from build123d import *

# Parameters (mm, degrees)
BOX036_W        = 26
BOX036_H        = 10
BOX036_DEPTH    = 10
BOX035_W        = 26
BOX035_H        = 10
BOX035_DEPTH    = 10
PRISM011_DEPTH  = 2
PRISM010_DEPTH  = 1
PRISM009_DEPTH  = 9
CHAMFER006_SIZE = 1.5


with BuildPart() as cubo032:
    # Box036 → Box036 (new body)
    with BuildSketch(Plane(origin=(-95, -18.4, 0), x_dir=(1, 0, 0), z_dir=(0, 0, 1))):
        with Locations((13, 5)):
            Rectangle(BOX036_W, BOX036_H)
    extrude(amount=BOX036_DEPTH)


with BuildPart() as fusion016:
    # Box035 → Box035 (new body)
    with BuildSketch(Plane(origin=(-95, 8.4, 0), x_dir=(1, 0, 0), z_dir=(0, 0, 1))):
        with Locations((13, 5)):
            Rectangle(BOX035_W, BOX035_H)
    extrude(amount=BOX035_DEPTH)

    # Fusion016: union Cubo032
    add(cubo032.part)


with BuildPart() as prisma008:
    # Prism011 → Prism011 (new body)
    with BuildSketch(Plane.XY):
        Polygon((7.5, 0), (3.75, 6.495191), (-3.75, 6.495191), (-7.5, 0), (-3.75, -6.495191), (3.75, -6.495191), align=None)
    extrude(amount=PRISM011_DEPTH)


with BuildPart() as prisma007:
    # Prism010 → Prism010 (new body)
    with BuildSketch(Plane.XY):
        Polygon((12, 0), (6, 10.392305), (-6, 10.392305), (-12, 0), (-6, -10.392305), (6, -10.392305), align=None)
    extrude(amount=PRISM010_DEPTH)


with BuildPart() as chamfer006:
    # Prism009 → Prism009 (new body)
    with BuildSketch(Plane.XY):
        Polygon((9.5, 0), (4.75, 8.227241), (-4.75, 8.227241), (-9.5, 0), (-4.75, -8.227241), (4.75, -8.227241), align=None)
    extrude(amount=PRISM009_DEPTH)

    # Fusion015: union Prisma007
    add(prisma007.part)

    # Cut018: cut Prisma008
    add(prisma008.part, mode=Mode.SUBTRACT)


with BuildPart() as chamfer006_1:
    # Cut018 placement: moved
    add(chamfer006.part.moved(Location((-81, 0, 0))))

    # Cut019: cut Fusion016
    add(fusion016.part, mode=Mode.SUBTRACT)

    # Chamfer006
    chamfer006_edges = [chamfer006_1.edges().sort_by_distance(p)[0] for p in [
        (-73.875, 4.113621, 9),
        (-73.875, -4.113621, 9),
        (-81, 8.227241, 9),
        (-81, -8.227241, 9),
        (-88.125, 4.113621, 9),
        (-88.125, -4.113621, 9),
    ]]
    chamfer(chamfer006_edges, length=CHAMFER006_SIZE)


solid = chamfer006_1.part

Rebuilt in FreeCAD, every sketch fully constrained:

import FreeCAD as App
import Part
import Sketcher
from FreeCAD import Vector
Q = App.Units.Quantity


def edges_at(feature, points):
    """Names of the edges that pass closest to the given points."""
    edges = feature.Shape.Edges
    near = lambda p: min(range(len(edges)), key=lambda i: edges[i].distToShape(Part.Vertex(*p))[0])
    return sorted({f"Edge{near(p) + 1}" for p in points})


def add_polygon(sketch, points):
    """Adds a closed chain of lines whose ends are joined by coincident constraints."""
    first, n = sketch.GeometryCount, len(points)
    for a, b in zip(points, points[1:] + points[:1]):
        sketch.addGeometry(Part.LineSegment(App.Vector(*a, 0), App.Vector(*b, 0)), False)
    for i in range(n):
        sketch.addConstraint(Sketcher.Constraint("Coincident", first + i, 2, first + (i + 1) % n, 1))

doc = App.newDocument("Part")
body = doc.addObject("PartDesign::Body", "Body")

# Sketch on XY plane
sketch1 = doc.addObject("Sketcher::SketchObject", "Sketch")
body.addObject(sketch1)
sketch1.AttachmentSupport = (doc.XY_Plane, [""])
sketch1.MapMode = "FlatFace"
add_polygon(sketch1, [(-95, -8), (-95, -18), (-69, -18), (-69, -8)])  # lines 0-3
sketch1.addConstraint(Sketcher.Constraint("Vertical", 0))
sketch1.addConstraint(Sketcher.Constraint("Horizontal", 1))
sketch1.addConstraint(Sketcher.Constraint("Vertical", 2))
sketch1.addConstraint(Sketcher.Constraint("Horizontal", 3))
sketch1.addConstraint(Sketcher.Constraint("DistanceX", 1, 1, 1, 2, Q("26 mm")))
sketch1.addConstraint(Sketcher.Constraint("DistanceY", 0, 2, 0, 1, Q("10 mm")))
sketch1.addConstraint(Sketcher.Constraint("DistanceX", 0, 2, -1, 1, Q("95 mm")))
sketch1.addConstraint(Sketcher.Constraint("DistanceY", 0, 2, -1, 1, Q("18.4 mm")))
pad1 = doc.addObject("PartDesign::Pad", "Pad")
body.addObject(pad1)
pad1.Profile = sketch1
pad1.Length = 10
body2 = doc.addObject("PartDesign::Body", "Body001")
body2.AllowCompound = True

# Sketch on XY plane
sketch2 = doc.addObject("Sketcher::SketchObject", "Sketch001")
body2.addObject(sketch2)
sketch2.AttachmentSupport = (doc.getObject("XY_Plane001"), [""])
sketch2.MapMode = "FlatFace"
add_polygon(sketch2, [(-95, 18), (-95, 8), (-69, 8), (-69, 18)])  # lines 0-3
sketch2.addConstraint(Sketcher.Constraint("Vertical", 0))
sketch2.addConstraint(Sketcher.Constraint("Horizontal", 1))
sketch2.addConstraint(Sketcher.Constraint("Vertical", 2))
sketch2.addConstraint(Sketcher.Constraint("Horizontal", 3))
sketch2.addConstraint(Sketcher.Constraint("DistanceX", 1, 1, 1, 2, Q("26 mm")))
sketch2.addConstraint(Sketcher.Constraint("DistanceY", 0, 2, 0, 1, Q("10 mm")))
sketch2.addConstraint(Sketcher.Constraint("DistanceX", 0, 2, -1, 1, Q("95 mm")))
sketch2.addConstraint(Sketcher.Constraint("DistanceY", -1, 1, 0, 2, Q("8.4 mm")))
pad2 = doc.addObject("PartDesign::Pad", "Pad001")
body2.addObject(pad2)
pad2.Profile = sketch2
pad2.Length = 10
doc.recompute()

boolean = doc.addObject("PartDesign::Boolean", "Boolean")
body2.addObject(boolean)
boolean.Type = "Fuse"
boolean.addObjects([body])
body3 = doc.addObject("PartDesign::Body", "Body002")

# Sketch on XY plane
sketch3 = doc.addObject("Sketcher::SketchObject", "Sketch002")
body3.addObject(sketch3)
sketch3.AttachmentSupport = (doc.getObject("XY_Plane002"), [""])
sketch3.MapMode = "FlatFace"
add_polygon(sketch3, [(8, 0), (4, 6), (-4, 6), (-8, 0), (-4, -6), (4, -6)])  # lines 0-5
sketch3.addConstraint(Sketcher.Constraint("Horizontal", 1))
sketch3.addConstraint(Sketcher.Constraint("Horizontal", 4))
sketch3.addConstraint(Sketcher.Constraint("Symmetric", 0, 2, 3, 2, -1, 1))
sketch3.addConstraint(Sketcher.Constraint("Symmetric", 2, 2, 5, 2, -1, 1))
sketch3.addConstraint(Sketcher.Constraint("PointOnObject", 2, 2, -1))
sketch3.addConstraint(Sketcher.Constraint("Parallel", 2, 5))
sketch3.addConstraint(Sketcher.Constraint("Vertical", 1, 2, 3, 2))
sketch3.addConstraint(Sketcher.Constraint("Angle", 0, Q("119.999998 deg")))
sketch3.addConstraint(Sketcher.Constraint("DistanceX", 1, 2, 1, 1, Q("7.5 mm")))
sketch3.addConstraint(Sketcher.Constraint("DistanceX", 2, 2, 5, 2, Q("15 mm")))
pad3 = doc.addObject("PartDesign::Pad", "Pad002")
body3.addObject(pad3)
pad3.Profile = sketch3
pad3.Length = 2
body4 = doc.addObject("PartDesign::Body", "Body003")

# Sketch on XY plane
sketch4 = doc.addObject("Sketcher::SketchObject", "Sketch003")
body4.addObject(sketch4)
sketch4.AttachmentSupport = (doc.getObject("XY_Plane003"), [""])
sketch4.MapMode = "FlatFace"
add_polygon(sketch4, [(12, 0), (6, 10), (-6, 10), (-12, 0), (-6, -10), (6, -10)])  # lines 0-5
sketch4.addConstraint(Sketcher.Constraint("Horizontal", 1))
sketch4.addConstraint(Sketcher.Constraint("Horizontal", 4))
sketch4.addConstraint(Sketcher.Constraint("Symmetric", 0, 2, 3, 2, -1, 1))
sketch4.addConstraint(Sketcher.Constraint("Symmetric", 2, 2, 5, 2, -1, 1))
sketch4.addConstraint(Sketcher.Constraint("PointOnObject", 2, 2, -1))
sketch4.addConstraint(Sketcher.Constraint("Parallel", 2, 5))
sketch4.addConstraint(Sketcher.Constraint("Vertical", 1, 2, 3, 2))
sketch4.addConstraint(Sketcher.Constraint("DistanceX", 1, 2, 1, 1, Q("12 mm")))
sketch4.addConstraint(Sketcher.Constraint("Angle", 0, Q("120 deg")))
sketch4.addConstraint(Sketcher.Constraint("Distance", 0, Q("12 mm")))
pad4 = doc.addObject("PartDesign::Pad", "Pad003")
body4.addObject(pad4)
pad4.Profile = sketch4
pad4.Length = 1
body5 = doc.addObject("PartDesign::Body", "Body004")

# Sketch on XY plane
sketch5 = doc.addObject("Sketcher::SketchObject", "Sketch004")
body5.addObject(sketch5)
sketch5.AttachmentSupport = (doc.getObject("XY_Plane004"), [""])
sketch5.MapMode = "FlatFace"
add_polygon(sketch5, [(10, 0), (5, 8), (-5, 8), (-10, 0), (-5, -8), (5, -8)])  # lines 0-5
sketch5.addConstraint(Sketcher.Constraint("Horizontal", 1))
sketch5.addConstraint(Sketcher.Constraint("Horizontal", 4))
sketch5.addConstraint(Sketcher.Constraint("Symmetric", 0, 2, 3, 2, -1, 1))
sketch5.addConstraint(Sketcher.Constraint("Symmetric", 2, 2, 5, 2, -1, 1))
sketch5.addConstraint(Sketcher.Constraint("PointOnObject", 2, 2, -1))
sketch5.addConstraint(Sketcher.Constraint("Parallel", 2, 5))
sketch5.addConstraint(Sketcher.Constraint("Vertical", 1, 2, 3, 2))
sketch5.addConstraint(Sketcher.Constraint("Angle", 0, Q("120.000001 deg")))
sketch5.addConstraint(Sketcher.Constraint("DistanceX", 1, 2, 1, 1, Q("9.5 mm")))
sketch5.addConstraint(Sketcher.Constraint("DistanceX", 2, 2, 5, 2, Q("19 mm")))
pad5 = doc.addObject("PartDesign::Pad", "Pad004")
body5.addObject(pad5)
pad5.Profile = sketch5
pad5.Length = 9
doc.recompute()

boolean2 = doc.addObject("PartDesign::Boolean", "Boolean001")
body5.addObject(boolean2)
boolean2.Type = "Fuse"
boolean2.addObjects([body4])
doc.recompute()

boolean3 = doc.addObject("PartDesign::Boolean", "Boolean002")
body5.addObject(boolean3)
boolean3.Type = "Cut"
boolean3.addObjects([body3])
body6 = doc.addObject("PartDesign::Body", "Body005")
doc.recompute()

body5.Placement = App.Placement(Vector(-81, 0, 0), App.Rotation(Vector(0, 0, 1), 0))
boolean4 = doc.addObject("PartDesign::Boolean", "Boolean003")
body6.addObject(boolean4)
boolean4.Type = "Fuse"
boolean4.addObjects([body5])
doc.recompute()

boolean5 = doc.addObject("PartDesign::Boolean", "Boolean004")
body6.addObject(boolean5)
boolean5.Type = "Cut"
boolean5.addObjects([body2])
doc.recompute()

chamfer = doc.addObject("PartDesign::Chamfer", "Chamfer")
body6.addObject(chamfer)
chamfer.Base = (boolean5, edges_at(boolean5, [
    (-73.875, 4.114, 9),
    (-73.875, -4.114, 9),
    (-81, 8.227, 9),
    (-81, -8.227, 9),
    (-88.125, 4.114, 9),
    (-88.125, -4.114, 9),
]))
chamfer.Size = 1.5

doc.recompute()
